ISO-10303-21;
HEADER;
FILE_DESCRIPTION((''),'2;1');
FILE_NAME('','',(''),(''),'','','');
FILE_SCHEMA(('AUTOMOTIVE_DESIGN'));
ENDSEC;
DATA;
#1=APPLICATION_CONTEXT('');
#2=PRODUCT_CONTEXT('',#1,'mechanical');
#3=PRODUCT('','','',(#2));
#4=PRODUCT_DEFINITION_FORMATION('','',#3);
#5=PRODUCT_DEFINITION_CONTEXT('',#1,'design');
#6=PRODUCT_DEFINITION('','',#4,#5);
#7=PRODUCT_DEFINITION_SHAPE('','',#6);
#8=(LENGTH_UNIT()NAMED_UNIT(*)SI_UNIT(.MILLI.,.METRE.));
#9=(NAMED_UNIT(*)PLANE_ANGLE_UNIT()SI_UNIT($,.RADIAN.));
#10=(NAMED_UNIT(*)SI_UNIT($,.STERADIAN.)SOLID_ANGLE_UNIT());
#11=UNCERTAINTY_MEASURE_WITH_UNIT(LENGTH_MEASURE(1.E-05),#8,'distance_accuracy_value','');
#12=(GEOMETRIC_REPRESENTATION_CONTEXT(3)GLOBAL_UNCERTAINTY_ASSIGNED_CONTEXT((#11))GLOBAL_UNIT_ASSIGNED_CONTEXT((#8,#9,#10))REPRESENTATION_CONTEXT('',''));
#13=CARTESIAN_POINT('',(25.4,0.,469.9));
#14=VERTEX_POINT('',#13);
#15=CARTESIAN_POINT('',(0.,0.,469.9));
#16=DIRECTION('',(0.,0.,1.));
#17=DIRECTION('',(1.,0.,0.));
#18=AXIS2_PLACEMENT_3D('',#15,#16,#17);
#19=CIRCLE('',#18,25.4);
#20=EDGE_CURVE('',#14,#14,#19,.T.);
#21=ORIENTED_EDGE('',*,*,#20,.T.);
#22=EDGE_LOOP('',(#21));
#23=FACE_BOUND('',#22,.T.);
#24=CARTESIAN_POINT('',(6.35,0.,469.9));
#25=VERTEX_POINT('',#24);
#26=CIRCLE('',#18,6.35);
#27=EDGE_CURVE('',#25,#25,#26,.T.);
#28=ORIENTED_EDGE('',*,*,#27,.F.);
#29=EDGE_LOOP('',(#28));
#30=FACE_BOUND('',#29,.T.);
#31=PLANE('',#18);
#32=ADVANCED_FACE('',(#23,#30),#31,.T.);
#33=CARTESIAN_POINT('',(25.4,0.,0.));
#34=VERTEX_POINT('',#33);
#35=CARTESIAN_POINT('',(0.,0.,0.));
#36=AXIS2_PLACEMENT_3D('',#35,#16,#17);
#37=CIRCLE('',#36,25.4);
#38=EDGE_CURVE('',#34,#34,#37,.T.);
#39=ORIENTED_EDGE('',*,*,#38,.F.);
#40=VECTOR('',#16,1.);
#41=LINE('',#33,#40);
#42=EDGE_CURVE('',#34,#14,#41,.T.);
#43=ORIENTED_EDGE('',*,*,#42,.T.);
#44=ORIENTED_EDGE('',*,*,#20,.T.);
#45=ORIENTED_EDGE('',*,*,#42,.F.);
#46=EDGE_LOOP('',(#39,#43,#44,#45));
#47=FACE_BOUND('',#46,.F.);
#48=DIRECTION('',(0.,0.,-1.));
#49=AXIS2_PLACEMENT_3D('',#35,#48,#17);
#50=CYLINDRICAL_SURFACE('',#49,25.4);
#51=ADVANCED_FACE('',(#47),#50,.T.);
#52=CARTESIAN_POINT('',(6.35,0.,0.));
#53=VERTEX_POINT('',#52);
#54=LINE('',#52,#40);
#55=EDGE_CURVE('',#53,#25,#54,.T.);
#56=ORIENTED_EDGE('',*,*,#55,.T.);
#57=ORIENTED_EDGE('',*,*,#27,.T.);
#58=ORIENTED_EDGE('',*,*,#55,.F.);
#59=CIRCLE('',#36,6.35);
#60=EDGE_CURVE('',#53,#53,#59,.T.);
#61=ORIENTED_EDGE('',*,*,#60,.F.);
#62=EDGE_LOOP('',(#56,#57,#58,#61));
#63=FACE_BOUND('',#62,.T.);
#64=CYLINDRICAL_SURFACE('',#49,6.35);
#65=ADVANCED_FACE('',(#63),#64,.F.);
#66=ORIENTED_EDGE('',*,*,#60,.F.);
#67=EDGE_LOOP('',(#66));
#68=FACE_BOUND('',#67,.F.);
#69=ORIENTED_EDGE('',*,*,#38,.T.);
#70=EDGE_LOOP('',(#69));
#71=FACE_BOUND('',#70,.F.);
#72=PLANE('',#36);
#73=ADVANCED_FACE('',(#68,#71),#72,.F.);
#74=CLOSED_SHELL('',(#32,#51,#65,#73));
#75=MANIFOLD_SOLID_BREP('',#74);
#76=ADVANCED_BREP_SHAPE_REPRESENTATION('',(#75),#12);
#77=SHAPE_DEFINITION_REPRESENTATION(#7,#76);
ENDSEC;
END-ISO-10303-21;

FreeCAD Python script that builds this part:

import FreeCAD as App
import Part
import Sketcher
Q = App.Units.Quantity

doc = App.newDocument("Part")
params = doc.addObject("Spreadsheet::Sheet", "Params")
for row, (alias, value) in enumerate([
    ("sketch1_diameter", "2 in"),
    ("sketch1_diameter2", "0.5 in"),
    ("pad1_length", "18.5 in"),
], start=1):
    params.set(f"A{row}", alias)
    params.set(f"B{row}", "=" + value)
    params.setAlias(f"B{row}", alias)

body = doc.addObject("PartDesign::Body", "Body")

sketch1 = body.newObject("Sketcher::SketchObject", "Sketch")
sketch1.AttachmentSupport = (doc.getObject("XY_Plane"), [""])
sketch1.MapMode = "FlatFace"
sketch1.addGeometry(Part.Circle(App.Vector(0, 0, 0), App.Vector(0, 0, 1), 25), False)
sketch1.addGeometry(Part.Circle(App.Vector(0, 0, 0), App.Vector(0, 0, 1), 6), False)
sketch1.addConstraint(Sketcher.Constraint("Coincident", 0, 3, -1, 1))
sketch1.addConstraint(Sketcher.Constraint("Coincident", 1, 3, -1, 1))
sketch1.addConstraint(Sketcher.Constraint("Diameter", 0, Q("2 in")))
sketch1.addConstraint(Sketcher.Constraint("Diameter", 1, Q("0.5 in")))
sketch1.setExpression("Constraints[2]", "Params.sketch1_diameter")
sketch1.setExpression("Constraints[3]", "Params.sketch1_diameter2")
pad1 = body.newObject("PartDesign::Pad", "Pad")
pad1.Profile = sketch1
pad1.setExpression("Length", "Params.pad1_length")

doc.recompute()
